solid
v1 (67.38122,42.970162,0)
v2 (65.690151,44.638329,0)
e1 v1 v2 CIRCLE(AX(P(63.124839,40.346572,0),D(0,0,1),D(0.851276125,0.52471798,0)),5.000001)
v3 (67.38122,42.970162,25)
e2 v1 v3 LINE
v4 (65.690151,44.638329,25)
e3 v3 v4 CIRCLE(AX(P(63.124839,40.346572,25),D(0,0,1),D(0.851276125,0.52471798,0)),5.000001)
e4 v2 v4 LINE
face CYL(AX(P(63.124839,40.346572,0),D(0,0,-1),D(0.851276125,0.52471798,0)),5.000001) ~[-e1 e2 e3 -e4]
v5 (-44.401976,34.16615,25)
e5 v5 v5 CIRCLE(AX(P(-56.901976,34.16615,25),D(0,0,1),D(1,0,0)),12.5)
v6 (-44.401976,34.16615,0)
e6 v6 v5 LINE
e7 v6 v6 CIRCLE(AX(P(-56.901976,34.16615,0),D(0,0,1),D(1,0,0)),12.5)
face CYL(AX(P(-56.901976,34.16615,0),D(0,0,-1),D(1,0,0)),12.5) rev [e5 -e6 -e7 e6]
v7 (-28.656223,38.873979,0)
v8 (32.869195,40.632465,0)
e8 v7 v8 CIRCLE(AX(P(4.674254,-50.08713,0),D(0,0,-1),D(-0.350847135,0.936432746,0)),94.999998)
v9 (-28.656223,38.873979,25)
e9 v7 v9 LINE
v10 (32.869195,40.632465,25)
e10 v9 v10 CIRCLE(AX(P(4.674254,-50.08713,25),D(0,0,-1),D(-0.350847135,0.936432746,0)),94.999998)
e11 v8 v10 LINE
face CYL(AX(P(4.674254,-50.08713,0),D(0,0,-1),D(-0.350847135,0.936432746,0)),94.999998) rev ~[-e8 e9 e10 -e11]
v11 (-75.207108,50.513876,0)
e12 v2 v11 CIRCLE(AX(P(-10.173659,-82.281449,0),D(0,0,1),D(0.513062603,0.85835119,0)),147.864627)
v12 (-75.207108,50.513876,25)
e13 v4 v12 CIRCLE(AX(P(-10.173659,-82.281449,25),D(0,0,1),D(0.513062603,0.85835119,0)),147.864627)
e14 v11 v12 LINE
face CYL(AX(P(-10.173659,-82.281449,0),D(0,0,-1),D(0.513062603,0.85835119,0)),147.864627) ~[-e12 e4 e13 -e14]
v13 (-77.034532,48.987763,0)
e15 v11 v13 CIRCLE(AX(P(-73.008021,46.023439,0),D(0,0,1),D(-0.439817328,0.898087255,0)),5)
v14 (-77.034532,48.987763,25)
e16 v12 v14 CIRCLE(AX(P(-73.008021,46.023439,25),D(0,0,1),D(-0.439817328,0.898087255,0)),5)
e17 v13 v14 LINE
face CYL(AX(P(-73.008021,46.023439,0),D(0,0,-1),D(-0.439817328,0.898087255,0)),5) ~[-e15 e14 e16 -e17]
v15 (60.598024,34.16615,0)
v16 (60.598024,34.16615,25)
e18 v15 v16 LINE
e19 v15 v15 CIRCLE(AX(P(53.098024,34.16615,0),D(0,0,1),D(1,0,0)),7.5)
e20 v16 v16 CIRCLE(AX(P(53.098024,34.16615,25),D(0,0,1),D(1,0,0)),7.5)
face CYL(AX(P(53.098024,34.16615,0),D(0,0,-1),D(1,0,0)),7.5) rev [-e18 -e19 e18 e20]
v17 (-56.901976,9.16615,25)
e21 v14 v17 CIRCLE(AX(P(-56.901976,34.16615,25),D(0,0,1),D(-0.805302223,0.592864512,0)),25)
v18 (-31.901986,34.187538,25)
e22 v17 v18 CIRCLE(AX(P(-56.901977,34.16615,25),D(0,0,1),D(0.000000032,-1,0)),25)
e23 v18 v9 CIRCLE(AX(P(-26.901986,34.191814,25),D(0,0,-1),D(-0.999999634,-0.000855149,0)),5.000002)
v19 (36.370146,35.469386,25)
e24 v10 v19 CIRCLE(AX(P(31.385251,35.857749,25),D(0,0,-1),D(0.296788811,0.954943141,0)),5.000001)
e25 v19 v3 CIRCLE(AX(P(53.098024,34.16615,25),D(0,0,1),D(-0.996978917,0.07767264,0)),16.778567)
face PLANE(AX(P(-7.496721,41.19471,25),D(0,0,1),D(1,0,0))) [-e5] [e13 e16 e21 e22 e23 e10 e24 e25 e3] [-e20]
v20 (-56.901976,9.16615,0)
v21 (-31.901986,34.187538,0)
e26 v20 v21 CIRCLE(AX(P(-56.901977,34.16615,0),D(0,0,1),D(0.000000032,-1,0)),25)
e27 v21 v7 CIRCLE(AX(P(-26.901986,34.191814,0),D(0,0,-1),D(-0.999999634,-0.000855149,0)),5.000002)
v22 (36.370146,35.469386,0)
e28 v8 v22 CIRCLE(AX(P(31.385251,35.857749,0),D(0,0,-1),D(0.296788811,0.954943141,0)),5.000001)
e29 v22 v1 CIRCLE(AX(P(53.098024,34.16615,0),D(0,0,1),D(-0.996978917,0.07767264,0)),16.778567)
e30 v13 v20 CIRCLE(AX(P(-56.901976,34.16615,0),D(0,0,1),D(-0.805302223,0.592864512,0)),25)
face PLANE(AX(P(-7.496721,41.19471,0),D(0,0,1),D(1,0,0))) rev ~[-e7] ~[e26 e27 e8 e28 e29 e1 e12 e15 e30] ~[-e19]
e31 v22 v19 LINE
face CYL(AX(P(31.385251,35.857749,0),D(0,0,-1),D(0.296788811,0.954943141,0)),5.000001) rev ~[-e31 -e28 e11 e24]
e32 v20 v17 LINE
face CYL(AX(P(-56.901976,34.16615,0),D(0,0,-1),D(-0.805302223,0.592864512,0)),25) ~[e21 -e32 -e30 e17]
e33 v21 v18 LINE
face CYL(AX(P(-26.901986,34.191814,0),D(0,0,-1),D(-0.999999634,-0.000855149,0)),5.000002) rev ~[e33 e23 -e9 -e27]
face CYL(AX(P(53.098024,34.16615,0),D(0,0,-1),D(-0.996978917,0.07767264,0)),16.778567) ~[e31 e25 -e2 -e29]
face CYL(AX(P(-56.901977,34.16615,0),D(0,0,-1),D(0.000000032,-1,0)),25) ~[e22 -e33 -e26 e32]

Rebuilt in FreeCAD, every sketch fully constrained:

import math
import FreeCAD as App
import Part
import Sketcher

V = App.Vector

doc = App.newDocument("Part")
body = doc.addObject("PartDesign::Body", "Body")

# Sketch on XY plane
sketch1 = doc.addObject("Sketcher::SketchObject", "Sketch")
body.addObject(sketch1)
sketch1.AttachmentSupport = (doc.XY_Plane, [""])
sketch1.MapMode = "FlatFace"
sketch1.addGeometry([
    Part.ArcOfCircle(Part.Circle(V(-73, 46, 0), V(0, 0, 1), 5), math.radians(116), math.radians(144)),  # 0
    Part.ArcOfCircle(Part.Circle(V(-56.9, 34.2, 0), V(0, 0, 1), 25), math.radians(144), math.radians(270)),  # 1
    Part.ArcOfCircle(Part.Circle(V(-56.9, 34.2, 0), V(0, 0, 1), 25), math.radians(-90), math.radians(0)),  # 2
    Part.ArcOfCircle(Part.Circle(V(-26.9, 34.2, 0), V(0, 0, 1), 5), math.radians(111), math.radians(180)),  # 3
    Part.ArcOfCircle(Part.Circle(V(4.7, -50.1, 0), V(0, 0, 1), 95), math.radians(73), math.radians(111)),  # 4
    Part.ArcOfCircle(Part.Circle(V(31.4, 35.9, 0), V(0, 0, 1), 5), math.radians(-4), math.radians(73)),  # 5
    Part.ArcOfCircle(Part.Circle(V(53.1, 34.2, 0), V(0, 0, 1), 16.8), math.radians(176), math.radians(392)),  # 6
    Part.ArcOfCircle(Part.Circle(V(63.1, 40.3, 0), V(0, 0, 1), 5), math.radians(32), math.radians(59)),  # 7
    Part.ArcOfCircle(Part.Circle(V(-10.2, -82.3, 0), V(0, 0, 1), 147.9), math.radians(59), math.radians(116)),  # 8
    Part.Circle(V(-56.9, 34.2, 0), V(0, 0, 1), 12.5),  # 9
    Part.Circle(V(53.1, 34.2, 0), V(0, 0, 1), 7.5),  # 10
], False)
sketch1.addConstraint([
    Sketcher.Constraint("Tangent", 0, 2, 1, 1),
    Sketcher.Constraint("Tangent", 1, 2, 2, 1),
    Sketcher.Constraint("Tangent", 2, 2, 3, 2),
    Sketcher.Constraint("Tangent", 3, 1, 4, 2),
    Sketcher.Constraint("Tangent", 4, 1, 5, 2),
    Sketcher.Constraint("Tangent", 5, 1, 6, 1),
    Sketcher.Constraint("Tangent", 6, 2, 7, 1),
    Sketcher.Constraint("Tangent", 7, 2, 8, 1),
    Sketcher.Constraint("Tangent", 8, 2, 0, 1),
    Sketcher.Constraint("Coincident", 9, 3, 1, 3),
    Sketcher.Constraint("Coincident", 10, 3, 6, 3),
    Sketcher.Constraint("Equal", 1, 2),
    Sketcher.Constraint("Equal", 0, 3),
    Sketcher.Constraint("Equal", 3, 5),
    Sketcher.Constraint("Equal", 5, 7),
    Sketcher.Constraint("Horizontal", 2, 3, 6, 3),
    Sketcher.Constraint("Vertical", 9, 3, 1, 2),
    Sketcher.Constraint("Diameter", 9, 25.0),
    Sketcher.Constraint("Diameter", 10, 15.0),
    Sketcher.Constraint("Radius", 0, 5.0),
    Sketcher.Constraint("Radius", 1, 25.0),
    Sketcher.Constraint("DistanceX", 1, 3, 6, 3, 110.0),
    Sketcher.Constraint("Radius", 4, 94.999998),
    Sketcher.Constraint("Radius", 6, 16.778567),
    Sketcher.Constraint("Radius", 8, 147.864627),
    Sketcher.Constraint("DistanceY", 1, 3, 5, 3, 1.691599),
    Sketcher.Constraint("DistanceY", 4, 3, 7, 3, 90.433701),
    Sketcher.Constraint("DistanceY", 8, 3, 5, 3, 118.139198),
    Sketcher.Constraint("DistanceX", 0, 3, -1, 1, 73.008021),
    Sketcher.Constraint("DistanceY", -1, 1, 0, 3, 46.023439),
    Sketcher.Constraint("DistanceY", -1, 1, 1, 3, 34.16615),
])
pad1 = doc.addObject("PartDesign::Pad", "Pad")
body.addObject(pad1)
pad1.Profile = sketch1
pad1.Length = 25

doc.recompute()
